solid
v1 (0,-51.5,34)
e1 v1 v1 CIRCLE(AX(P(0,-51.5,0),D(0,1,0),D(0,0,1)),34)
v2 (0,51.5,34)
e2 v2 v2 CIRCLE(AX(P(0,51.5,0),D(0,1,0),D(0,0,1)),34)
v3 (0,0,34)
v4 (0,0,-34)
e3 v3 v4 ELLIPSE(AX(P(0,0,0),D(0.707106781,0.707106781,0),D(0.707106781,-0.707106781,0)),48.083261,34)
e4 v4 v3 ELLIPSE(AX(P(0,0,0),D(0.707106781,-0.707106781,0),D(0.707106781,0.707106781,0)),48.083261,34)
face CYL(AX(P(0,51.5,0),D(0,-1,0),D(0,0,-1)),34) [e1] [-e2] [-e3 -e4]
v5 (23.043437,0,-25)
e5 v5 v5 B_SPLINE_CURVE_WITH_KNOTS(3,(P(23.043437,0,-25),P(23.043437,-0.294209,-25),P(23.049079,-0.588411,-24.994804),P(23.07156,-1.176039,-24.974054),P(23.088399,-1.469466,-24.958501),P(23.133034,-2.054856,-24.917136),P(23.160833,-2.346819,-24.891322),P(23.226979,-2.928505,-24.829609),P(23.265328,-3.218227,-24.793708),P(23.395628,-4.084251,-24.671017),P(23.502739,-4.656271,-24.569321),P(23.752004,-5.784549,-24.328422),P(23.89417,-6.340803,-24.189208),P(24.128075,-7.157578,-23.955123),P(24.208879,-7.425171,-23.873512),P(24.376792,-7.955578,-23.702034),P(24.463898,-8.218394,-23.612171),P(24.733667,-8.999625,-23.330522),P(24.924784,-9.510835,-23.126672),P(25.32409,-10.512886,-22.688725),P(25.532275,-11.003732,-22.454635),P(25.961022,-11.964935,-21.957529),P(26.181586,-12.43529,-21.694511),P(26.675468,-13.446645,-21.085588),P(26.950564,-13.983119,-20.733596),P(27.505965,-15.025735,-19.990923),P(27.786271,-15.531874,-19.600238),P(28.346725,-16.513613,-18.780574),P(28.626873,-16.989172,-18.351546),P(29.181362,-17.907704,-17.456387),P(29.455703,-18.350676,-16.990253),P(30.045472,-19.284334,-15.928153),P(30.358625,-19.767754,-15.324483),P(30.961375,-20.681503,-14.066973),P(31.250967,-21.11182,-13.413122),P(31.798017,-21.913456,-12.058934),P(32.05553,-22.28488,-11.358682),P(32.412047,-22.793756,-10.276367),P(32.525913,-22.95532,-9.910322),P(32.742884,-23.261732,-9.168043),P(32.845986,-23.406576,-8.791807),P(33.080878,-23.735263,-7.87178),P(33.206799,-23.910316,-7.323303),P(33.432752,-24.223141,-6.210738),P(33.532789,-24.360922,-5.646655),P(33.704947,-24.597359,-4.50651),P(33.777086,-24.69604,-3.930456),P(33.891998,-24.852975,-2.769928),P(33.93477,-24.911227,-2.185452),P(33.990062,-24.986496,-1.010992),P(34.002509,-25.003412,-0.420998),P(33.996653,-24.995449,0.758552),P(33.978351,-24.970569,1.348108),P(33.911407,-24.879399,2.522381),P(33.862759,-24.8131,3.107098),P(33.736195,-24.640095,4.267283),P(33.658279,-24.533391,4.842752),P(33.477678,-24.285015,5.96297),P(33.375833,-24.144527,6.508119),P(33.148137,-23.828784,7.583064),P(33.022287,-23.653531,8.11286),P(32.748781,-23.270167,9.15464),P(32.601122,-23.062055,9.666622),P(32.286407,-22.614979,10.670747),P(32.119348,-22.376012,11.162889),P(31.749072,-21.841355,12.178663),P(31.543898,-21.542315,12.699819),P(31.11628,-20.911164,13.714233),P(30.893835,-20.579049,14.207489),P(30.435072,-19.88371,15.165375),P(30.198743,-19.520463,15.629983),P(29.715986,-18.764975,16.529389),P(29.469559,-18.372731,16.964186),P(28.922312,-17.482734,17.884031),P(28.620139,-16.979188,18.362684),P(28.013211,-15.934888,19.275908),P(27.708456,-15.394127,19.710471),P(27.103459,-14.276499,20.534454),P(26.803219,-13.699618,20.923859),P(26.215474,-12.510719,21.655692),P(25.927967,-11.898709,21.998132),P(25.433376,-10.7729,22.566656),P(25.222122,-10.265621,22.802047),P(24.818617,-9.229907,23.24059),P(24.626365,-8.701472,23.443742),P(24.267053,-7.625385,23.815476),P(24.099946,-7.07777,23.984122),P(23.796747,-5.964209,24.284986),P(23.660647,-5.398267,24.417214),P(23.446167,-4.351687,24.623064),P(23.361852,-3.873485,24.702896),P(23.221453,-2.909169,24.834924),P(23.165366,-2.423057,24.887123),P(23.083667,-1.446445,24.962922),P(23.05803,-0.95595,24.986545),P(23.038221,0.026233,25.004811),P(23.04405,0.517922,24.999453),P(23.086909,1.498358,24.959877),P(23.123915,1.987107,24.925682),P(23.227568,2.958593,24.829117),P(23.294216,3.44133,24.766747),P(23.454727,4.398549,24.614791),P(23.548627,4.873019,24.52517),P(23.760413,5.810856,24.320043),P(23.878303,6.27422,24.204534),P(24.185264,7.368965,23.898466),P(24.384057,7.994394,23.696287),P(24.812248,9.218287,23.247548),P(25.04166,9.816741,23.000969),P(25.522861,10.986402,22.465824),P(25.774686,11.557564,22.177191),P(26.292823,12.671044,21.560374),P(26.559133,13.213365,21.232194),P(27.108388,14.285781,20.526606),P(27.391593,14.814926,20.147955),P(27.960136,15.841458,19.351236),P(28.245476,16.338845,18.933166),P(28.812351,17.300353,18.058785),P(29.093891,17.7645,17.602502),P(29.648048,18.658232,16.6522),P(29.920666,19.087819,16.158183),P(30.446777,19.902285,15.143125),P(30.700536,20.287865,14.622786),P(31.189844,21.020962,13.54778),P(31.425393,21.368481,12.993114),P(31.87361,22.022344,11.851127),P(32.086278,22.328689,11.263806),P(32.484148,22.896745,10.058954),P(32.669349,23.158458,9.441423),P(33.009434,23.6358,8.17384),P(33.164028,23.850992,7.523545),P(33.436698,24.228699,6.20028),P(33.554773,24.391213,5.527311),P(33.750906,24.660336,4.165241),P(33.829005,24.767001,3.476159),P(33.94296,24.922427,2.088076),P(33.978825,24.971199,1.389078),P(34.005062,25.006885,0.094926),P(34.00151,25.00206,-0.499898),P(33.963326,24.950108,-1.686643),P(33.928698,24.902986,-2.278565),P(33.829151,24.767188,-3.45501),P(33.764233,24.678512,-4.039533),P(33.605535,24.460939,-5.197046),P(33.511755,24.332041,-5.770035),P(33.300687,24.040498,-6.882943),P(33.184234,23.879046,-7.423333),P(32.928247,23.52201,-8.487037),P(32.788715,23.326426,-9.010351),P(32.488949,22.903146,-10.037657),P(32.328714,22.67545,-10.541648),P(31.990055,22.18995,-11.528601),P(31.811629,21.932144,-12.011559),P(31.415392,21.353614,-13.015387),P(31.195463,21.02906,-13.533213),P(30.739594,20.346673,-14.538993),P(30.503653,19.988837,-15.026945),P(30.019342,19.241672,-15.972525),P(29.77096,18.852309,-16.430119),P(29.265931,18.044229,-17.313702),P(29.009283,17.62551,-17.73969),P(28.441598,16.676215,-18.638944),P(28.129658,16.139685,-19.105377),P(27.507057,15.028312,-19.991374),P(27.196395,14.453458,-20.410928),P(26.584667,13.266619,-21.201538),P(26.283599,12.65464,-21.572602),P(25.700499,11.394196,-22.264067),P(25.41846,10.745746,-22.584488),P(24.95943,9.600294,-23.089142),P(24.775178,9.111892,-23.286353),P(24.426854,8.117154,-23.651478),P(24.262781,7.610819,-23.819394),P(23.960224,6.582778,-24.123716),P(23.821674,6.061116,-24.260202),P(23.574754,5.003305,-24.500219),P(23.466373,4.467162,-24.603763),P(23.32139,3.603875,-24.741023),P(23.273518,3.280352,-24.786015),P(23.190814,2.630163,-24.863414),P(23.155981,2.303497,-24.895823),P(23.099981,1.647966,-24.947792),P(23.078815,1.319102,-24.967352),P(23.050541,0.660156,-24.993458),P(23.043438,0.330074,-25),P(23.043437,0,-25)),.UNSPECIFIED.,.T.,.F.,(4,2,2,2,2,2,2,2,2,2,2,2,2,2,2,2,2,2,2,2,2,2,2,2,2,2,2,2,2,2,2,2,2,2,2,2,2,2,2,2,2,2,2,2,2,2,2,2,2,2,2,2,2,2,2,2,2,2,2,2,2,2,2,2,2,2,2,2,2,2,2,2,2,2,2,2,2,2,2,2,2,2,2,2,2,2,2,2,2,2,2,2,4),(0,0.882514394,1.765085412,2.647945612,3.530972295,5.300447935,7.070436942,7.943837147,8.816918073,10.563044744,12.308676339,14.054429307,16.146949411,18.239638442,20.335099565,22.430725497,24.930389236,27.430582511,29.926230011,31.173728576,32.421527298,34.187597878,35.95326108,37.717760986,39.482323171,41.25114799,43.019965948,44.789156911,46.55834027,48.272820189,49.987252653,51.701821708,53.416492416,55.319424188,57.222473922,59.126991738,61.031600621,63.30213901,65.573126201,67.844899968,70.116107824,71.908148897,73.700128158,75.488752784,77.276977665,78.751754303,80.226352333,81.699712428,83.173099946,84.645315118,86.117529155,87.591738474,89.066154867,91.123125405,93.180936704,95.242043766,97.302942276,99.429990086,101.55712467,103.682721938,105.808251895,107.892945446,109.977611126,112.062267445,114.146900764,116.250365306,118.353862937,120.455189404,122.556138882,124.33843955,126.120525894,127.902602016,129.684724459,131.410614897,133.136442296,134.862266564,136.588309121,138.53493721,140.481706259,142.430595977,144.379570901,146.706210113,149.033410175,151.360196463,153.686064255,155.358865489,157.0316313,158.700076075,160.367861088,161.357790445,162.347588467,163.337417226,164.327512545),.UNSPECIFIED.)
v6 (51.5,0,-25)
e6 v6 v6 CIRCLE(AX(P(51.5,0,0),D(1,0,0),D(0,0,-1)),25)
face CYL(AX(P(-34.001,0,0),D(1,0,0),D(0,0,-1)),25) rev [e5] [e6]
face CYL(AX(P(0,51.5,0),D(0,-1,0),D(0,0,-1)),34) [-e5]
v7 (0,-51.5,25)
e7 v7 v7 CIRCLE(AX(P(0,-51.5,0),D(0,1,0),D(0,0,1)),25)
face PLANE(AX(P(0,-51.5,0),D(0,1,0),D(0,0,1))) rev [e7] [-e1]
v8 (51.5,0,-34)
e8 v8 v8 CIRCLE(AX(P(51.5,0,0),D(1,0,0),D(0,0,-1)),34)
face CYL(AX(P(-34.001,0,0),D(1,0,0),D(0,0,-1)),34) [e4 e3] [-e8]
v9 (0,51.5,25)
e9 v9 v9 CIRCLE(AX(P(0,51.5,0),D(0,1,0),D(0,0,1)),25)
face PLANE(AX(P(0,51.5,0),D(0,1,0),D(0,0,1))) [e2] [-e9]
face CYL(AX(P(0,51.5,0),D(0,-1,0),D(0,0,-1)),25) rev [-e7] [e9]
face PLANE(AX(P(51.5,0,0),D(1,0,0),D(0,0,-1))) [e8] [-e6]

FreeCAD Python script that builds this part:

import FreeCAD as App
import Part
import Sketcher
from FreeCAD import Vector

doc = App.newDocument("Part")
body = doc.addObject("PartDesign::Body", "Body")

sketch1 = body.newObject("Sketcher::SketchObject", "Sketch")
sketch1.AttachmentSupport = (doc.getObject("XZ_Plane"), [""])
sketch1.MapMode = "FlatFace"
sketch1.addGeometry([
    Part.Circle(Vector(0, 0, 0), Vector(0, 0, 1), 34),
    Part.Circle(Vector(0, 0, 0), Vector(0, 0, 1), 25),
], False)
sketch1.addConstraint([
    Sketcher.Constraint("Coincident", 0, 3, -1, 1),
    Sketcher.Constraint("Coincident", 1, 3, -1, 1),
    Sketcher.Constraint("Diameter", 0, 68.0),
    Sketcher.Constraint("Diameter", 1, 50.0),
])
pad1 = body.newObject("PartDesign::Pad", "Pad")
pad1.Profile = sketch1
pad1.Length = 103
pad1.Midplane = True

sketch2 = body.newObject("Sketcher::SketchObject", "Sketch001")
sketch2.AttachmentSupport = (doc.getObject("YZ_Plane"), [""])
sketch2.MapMode = "FlatFace"
sketch2.AttachmentOffset = App.Placement(Vector(0, 0, 51.5), App.Rotation())
sketch2.addGeometry([
    Part.Circle(Vector(0, 0, 0), Vector(0, 0, 1), 34),
    Part.Circle(Vector(0, 0, 0), Vector(0, 0, 1), 25),
], False)
sketch2.addConstraint([
    Sketcher.Constraint("Coincident", 0, 3, -1, 1),
    Sketcher.Constraint("Coincident", 1, 3, -1, 1),
    Sketcher.Constraint("Diameter", 0, 68.0),
    Sketcher.Constraint("Diameter", 1, 50.0),
])
pad2 = body.newObject("PartDesign::Pad", "Pad001")
pad2.Profile = sketch2
pad2.Type = "UpToFirst"
pad2.Reversed = True

doc.recompute()
